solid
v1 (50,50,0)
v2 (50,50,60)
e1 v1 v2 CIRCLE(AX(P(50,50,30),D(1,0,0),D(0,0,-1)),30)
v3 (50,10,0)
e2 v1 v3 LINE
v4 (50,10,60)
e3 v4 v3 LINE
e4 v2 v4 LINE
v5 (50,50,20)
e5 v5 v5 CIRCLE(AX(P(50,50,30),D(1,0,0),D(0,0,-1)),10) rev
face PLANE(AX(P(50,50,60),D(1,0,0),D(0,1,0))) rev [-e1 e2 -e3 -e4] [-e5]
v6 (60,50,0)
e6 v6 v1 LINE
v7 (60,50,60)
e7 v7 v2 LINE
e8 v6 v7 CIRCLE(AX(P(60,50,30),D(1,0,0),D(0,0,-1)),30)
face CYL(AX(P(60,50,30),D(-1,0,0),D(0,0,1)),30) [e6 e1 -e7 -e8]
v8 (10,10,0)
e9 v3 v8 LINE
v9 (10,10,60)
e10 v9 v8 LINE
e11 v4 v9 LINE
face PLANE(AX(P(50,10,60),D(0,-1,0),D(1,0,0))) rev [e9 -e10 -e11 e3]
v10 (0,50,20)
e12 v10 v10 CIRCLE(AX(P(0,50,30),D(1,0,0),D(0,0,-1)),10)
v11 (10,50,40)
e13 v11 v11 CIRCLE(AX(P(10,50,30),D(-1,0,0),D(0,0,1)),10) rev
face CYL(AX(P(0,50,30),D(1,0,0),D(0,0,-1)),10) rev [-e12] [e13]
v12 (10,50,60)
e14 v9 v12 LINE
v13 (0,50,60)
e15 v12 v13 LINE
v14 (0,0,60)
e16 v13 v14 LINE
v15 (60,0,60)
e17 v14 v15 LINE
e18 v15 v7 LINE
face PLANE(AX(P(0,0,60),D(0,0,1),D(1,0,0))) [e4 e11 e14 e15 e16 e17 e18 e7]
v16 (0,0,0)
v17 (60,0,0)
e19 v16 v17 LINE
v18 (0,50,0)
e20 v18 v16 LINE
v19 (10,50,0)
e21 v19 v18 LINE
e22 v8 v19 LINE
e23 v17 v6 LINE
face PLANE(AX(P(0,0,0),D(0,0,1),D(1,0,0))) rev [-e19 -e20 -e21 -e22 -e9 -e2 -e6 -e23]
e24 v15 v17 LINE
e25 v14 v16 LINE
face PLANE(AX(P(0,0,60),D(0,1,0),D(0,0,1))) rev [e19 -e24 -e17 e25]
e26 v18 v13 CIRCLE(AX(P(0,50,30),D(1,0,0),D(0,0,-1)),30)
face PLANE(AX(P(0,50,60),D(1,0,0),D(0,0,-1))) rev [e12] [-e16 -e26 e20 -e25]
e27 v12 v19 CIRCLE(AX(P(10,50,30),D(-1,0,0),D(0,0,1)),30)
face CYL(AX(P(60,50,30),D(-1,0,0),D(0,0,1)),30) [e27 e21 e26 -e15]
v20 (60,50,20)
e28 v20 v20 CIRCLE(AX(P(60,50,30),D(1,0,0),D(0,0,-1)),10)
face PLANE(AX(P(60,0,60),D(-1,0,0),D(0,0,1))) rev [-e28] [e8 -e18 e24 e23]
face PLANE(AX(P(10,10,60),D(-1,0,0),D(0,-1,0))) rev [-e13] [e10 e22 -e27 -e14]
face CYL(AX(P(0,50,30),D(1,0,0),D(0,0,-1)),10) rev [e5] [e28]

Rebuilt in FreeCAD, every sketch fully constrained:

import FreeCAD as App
import Part
import Sketcher
from FreeCAD import Vector
Q = App.Units.Quantity


def add_polygon(sketch, points):
    """Adds a closed chain of lines whose ends are joined by coincident constraints."""
    first, n = sketch.GeometryCount, len(points)
    for a, b in zip(points, points[1:] + points[:1]):
        sketch.addGeometry(Part.LineSegment(App.Vector(*a, 0), App.Vector(*b, 0)), False)
    for i in range(n):
        sketch.addConstraint(Sketcher.Constraint("Coincident", first + i, 2, first + (i + 1) % n, 1))

doc = App.newDocument("Part")
body = doc.addObject("PartDesign::Body", "Body")

# Sketch on XY plane
sketch1 = body.newObject("Sketcher::SketchObject", "Sketch")
sketch1.AttachmentSupport = (doc.getObject("XY_Plane"), [""])
sketch1.MapMode = "FlatFace"
add_polygon(sketch1, [(0, 0), (60, 0), (60, 50), (50, 50), (50, 10), (10, 10), (10, 50), (0, 50)])  # lines 0-7
sketch1.addConstraint(Sketcher.Constraint("Horizontal", 0))
sketch1.addConstraint(Sketcher.Constraint("Vertical", 1))
sketch1.addConstraint(Sketcher.Constraint("Horizontal", 2))
sketch1.addConstraint(Sketcher.Constraint("Vertical", 3))
sketch1.addConstraint(Sketcher.Constraint("Horizontal", 4))
sketch1.addConstraint(Sketcher.Constraint("Vertical", 5))
sketch1.addConstraint(Sketcher.Constraint("Horizontal", 6))
sketch1.addConstraint(Sketcher.Constraint("Vertical", 7))
sketch1.addConstraint(Sketcher.Constraint("Coincident", 7, 2, -1, 1))
sketch1.addConstraint(Sketcher.Constraint("Horizontal", 2, 2, 5, 2))
sketch1.addConstraint(Sketcher.Constraint("Equal", 2, 6))
sketch1.addConstraint(Sketcher.Constraint("Equal", 4, 3))
sketch1.addConstraint(Sketcher.Constraint("DistanceX", 0, 1, 0, 2, Q("60 mm")))
sketch1.addConstraint(Sketcher.Constraint("DistanceX", 2, 2, 2, 1, Q("10 mm")))
sketch1.addConstraint(Sketcher.Constraint("DistanceY", 1, 1, 1, 2, Q("50 mm")))
pad1 = body.newObject("PartDesign::Pad", "Pad")
pad1.Profile = sketch1
pad1.Length = 60

# Sketch on YZ plane
sketch2 = body.newObject("Sketcher::SketchObject", "Sketch001")
sketch2.AttachmentSupport = (doc.getObject("YZ_Plane"), [""])
sketch2.MapMode = "FlatFace"
sketch2.AttachmentOffset = App.Placement(Vector(0, 0, 60), App.Rotation())
sketch2.addGeometry(Part.Circle(Vector(50, 30, 0), Vector(0, 0, 1), 10), False)
sketch2.addConstraint(Sketcher.Constraint("Diameter", 0, Q("20 mm")))
sketch2.addConstraint(Sketcher.Constraint("DistanceX", -1, 1, 0, 3, Q("50 mm")))
sketch2.addConstraint(Sketcher.Constraint("DistanceY", -1, 1, 0, 3, Q("30 mm")))
pocket1 = body.newObject("PartDesign::Pocket", "Pocket")
pocket1.Profile = sketch2
pocket1.Type = "ThroughAll"

# Sketch on YZ plane
sketch3 = body.newObject("Sketcher::SketchObject", "Sketch002")
sketch3.AttachmentSupport = (doc.getObject("YZ_Plane"), [""])
sketch3.MapMode = "FlatFace"
sketch3.AttachmentOffset = App.Placement(Vector(0, 0, 60), App.Rotation())
sketch3.addGeometry(Part.Circle(Vector(50, 30, 0), Vector(0, 0, 1), 30), False)
sketch3.addGeometry(Part.Circle(Vector(50, 30, 0), Vector(0, 0, 1), 10), False)
sketch3.addConstraint(Sketcher.Constraint("Coincident", 1, 3, 0, 3))
sketch3.addConstraint(Sketcher.Constraint("Diameter", 0, Q("60 mm")))
sketch3.addConstraint(Sketcher.Constraint("Diameter", 1, Q("20 mm")))
sketch3.addConstraint(Sketcher.Constraint("DistanceX", -1, 1, 0, 3, Q("50 mm")))
sketch3.addConstraint(Sketcher.Constraint("DistanceY", -1, 1, 0, 3, Q("30 mm")))
pad2 = body.newObject("PartDesign::Pad", "Pad001")
pad2.Profile = sketch3
pad2.Length = 60
pad2.Reversed = True

# Sketch on XY plane
sketch4 = body.newObject("Sketcher::SketchObject", "Sketch003")
sketch4.AttachmentSupport = (doc.getObject("XY_Plane"), [""])
sketch4.MapMode = "FlatFace"
sketch4.AttachmentOffset = App.Placement(Vector(0, 0, 60), App.Rotation())
add_polygon(sketch4, [(10, 80), (10, 10), (50, 10), (50, 80)])  # lines 0-3
sketch4.addConstraint(Sketcher.Constraint("Vertical", 0))
sketch4.addConstraint(Sketcher.Constraint("Horizontal", 1))
sketch4.addConstraint(Sketcher.Constraint("Vertical", 2))
sketch4.addConstraint(Sketcher.Constraint("Horizontal", 3))
sketch4.addConstraint(Sketcher.Constraint("DistanceX", 1, 1, 1, 2, Q("40 mm")))
sketch4.addConstraint(Sketcher.Constraint("DistanceY", 0, 2, 0, 1, Q("70 mm")))
sketch4.addConstraint(Sketcher.Constraint("DistanceX", -1, 1, 0, 2, Q("10 mm")))
sketch4.addConstraint(Sketcher.Constraint("DistanceY", -1, 1, 0, 2, Q("10 mm")))
pocket2 = body.newObject("PartDesign::Pocket", "Pocket001")
pocket2.Profile = sketch4
pocket2.Length = 60

doc.recompute()
